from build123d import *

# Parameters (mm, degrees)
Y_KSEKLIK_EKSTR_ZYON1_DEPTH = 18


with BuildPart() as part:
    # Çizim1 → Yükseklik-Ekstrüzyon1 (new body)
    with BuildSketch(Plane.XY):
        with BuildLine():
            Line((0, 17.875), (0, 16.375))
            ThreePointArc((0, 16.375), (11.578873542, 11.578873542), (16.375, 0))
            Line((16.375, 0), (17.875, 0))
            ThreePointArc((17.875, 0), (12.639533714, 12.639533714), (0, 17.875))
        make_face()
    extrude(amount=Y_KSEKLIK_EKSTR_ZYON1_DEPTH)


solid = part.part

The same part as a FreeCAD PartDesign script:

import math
import FreeCAD as App
import Part
import Sketcher

doc = App.newDocument("Part")
params = doc.addObject("Spreadsheet::Sheet", "Params")
for row, (alias, value) in enumerate([
    ("sketch1_width", "1.5 mm"),
    ("pad1_length", "18 mm"),
], start=1):
    params.set(f"A{row}", alias)
    params.set(f"B{row}", "=" + value)
    params.setAlias(f"B{row}", alias)

body = doc.addObject("PartDesign::Body", "Body")

# Sketch on XY plane
sketch1 = doc.addObject("Sketcher::SketchObject", "Sketch")
body.addObject(sketch1)
sketch1.AttachmentSupport = (doc.XY_Plane, [""])
sketch1.MapMode = "FlatFace"
sketch1.addGeometry(Part.LineSegment(App.Vector(0, 17.9, 0), App.Vector(0, 16.4, 0)), False)
sketch1.addGeometry(Part.ArcOfCircle(Part.Circle(App.Vector(0, 0, 0), App.Vector(0, 0, 1), 16.4), math.radians(0), math.radians(90)), False)
sketch1.addGeometry(Part.LineSegment(App.Vector(16.4, 0, 0), App.Vector(17.9, 0, 0)), False)
sketch1.addGeometry(Part.ArcOfCircle(Part.Circle(App.Vector(0, 0, 0), App.Vector(0, 0, 1), 17.9), math.radians(0), math.radians(90)), False)
sketch1.addConstraint(Sketcher.Constraint("Coincident", 0, 2, 1, 2))
sketch1.addConstraint(Sketcher.Constraint("Coincident", 1, 1, 2, 1))
sketch1.addConstraint(Sketcher.Constraint("Coincident", 2, 2, 3, 1))
sketch1.addConstraint(Sketcher.Constraint("Coincident", 3, 2, 0, 1))
sketch1.addConstraint(Sketcher.Constraint("Vertical", 0))
sketch1.addConstraint(Sketcher.Constraint("Horizontal", 2))
sketch1.addConstraint(Sketcher.Constraint("Coincident", 1, 3, -1, 1))
sketch1.addConstraint(Sketcher.Constraint("Coincident", 3, 3, -1, 1))
sketch1.addConstraint(Sketcher.Constraint("PointOnObject", 0, 2, -2))
sketch1.addConstraint(Sketcher.Constraint("PointOnObject", 1, 1, -1))
sketch1.addConstraint(Sketcher.Constraint("DistanceX", 2, 1, 2, 2, 1.5))
sketch1.addConstraint(Sketcher.Constraint("Radius", 1, 16.375))
sketch1.setExpression("Constraints[10]", "Params.sketch1_width")
pad1 = doc.addObject("PartDesign::Pad", "Pad")
body.addObject(pad1)
pad1.Profile = sketch1
pad1.setExpression("Length", "Params.pad1_length")

doc.recompute()
